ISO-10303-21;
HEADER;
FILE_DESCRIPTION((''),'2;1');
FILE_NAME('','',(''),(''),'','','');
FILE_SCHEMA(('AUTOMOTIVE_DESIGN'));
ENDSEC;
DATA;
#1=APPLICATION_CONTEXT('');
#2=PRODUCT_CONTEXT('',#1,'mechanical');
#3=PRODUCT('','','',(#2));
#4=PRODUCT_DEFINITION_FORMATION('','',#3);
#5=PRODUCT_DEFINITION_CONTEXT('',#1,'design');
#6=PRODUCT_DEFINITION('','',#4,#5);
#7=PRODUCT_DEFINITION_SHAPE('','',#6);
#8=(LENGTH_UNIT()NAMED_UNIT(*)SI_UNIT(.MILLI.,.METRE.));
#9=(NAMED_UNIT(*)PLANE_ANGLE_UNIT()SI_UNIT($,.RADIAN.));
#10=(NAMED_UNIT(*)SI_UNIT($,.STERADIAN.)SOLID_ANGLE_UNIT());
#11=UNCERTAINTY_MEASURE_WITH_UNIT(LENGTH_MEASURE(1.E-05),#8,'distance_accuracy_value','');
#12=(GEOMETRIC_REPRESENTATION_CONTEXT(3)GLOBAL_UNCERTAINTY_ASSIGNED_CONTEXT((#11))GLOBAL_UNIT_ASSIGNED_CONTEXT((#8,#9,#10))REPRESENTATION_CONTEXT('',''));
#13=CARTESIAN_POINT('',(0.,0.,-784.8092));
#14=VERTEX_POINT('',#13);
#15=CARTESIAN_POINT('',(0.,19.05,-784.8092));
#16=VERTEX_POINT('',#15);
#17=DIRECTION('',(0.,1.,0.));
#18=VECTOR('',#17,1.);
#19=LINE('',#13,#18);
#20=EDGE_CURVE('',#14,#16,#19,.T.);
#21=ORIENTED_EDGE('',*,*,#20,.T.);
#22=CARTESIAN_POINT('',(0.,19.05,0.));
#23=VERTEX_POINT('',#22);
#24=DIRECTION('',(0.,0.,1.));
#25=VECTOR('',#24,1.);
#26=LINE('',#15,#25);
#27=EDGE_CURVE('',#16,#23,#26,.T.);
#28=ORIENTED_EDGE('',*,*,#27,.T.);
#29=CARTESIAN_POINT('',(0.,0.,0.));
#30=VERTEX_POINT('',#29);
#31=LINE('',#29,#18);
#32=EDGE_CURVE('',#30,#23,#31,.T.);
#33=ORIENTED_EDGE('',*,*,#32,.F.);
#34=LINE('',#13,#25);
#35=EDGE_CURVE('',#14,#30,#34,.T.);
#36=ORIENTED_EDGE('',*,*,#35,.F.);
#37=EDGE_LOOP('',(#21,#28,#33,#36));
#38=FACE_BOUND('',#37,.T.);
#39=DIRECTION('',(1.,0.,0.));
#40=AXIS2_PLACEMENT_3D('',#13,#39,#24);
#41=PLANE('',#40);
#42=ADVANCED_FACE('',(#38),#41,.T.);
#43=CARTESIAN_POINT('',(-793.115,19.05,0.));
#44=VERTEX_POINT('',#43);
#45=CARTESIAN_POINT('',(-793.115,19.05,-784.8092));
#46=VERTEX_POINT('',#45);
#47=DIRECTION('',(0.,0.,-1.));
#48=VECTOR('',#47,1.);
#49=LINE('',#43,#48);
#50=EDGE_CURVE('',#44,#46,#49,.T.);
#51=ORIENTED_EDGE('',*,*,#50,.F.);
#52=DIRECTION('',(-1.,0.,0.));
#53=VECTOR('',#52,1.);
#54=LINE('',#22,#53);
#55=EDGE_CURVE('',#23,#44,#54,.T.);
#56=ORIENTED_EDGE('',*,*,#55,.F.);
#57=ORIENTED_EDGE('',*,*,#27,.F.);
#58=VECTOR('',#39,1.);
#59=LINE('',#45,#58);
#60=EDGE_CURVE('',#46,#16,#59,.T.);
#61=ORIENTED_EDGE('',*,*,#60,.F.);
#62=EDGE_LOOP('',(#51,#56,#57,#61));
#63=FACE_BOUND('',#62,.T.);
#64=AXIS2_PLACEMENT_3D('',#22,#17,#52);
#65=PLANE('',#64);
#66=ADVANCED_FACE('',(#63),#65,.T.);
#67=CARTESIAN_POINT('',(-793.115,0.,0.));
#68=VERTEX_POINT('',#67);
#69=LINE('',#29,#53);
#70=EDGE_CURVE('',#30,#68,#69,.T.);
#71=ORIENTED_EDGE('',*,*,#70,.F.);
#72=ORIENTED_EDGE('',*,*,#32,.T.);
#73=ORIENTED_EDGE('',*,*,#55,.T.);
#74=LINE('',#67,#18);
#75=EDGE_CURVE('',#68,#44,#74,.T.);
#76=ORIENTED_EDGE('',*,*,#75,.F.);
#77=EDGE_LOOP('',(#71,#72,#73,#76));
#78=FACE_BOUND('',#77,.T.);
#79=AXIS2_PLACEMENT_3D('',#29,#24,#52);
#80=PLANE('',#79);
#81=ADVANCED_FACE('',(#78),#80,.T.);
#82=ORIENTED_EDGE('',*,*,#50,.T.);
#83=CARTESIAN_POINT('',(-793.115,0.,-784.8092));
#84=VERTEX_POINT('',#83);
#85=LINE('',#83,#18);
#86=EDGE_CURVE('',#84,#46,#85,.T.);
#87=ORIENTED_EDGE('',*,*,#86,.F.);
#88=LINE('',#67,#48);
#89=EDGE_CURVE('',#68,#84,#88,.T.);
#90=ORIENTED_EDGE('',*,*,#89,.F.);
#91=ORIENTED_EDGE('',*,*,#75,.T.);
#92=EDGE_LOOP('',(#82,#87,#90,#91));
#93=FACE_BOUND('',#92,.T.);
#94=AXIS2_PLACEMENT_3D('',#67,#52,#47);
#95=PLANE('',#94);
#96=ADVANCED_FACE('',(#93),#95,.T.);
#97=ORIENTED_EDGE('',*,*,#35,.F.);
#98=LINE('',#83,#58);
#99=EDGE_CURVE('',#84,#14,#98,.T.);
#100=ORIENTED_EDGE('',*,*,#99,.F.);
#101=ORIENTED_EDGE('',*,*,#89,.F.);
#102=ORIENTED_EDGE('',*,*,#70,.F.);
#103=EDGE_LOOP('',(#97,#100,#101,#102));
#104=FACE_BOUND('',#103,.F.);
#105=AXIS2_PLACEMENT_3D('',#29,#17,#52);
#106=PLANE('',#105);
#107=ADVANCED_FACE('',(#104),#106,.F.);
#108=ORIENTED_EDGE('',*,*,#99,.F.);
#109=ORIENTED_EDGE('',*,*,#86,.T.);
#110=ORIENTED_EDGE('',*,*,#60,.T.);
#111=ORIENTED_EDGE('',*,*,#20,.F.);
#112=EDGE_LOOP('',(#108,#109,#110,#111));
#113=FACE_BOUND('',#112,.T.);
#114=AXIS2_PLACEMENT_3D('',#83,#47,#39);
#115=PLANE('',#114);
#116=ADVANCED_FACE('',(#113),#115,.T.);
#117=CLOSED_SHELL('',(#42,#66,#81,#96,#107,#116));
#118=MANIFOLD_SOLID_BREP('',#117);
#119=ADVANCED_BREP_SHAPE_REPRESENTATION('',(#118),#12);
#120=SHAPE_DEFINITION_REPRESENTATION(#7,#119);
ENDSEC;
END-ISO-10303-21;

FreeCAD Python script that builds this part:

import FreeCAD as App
import Part
import Sketcher
from FreeCAD import Vector
Q = App.Units.Quantity

doc = App.newDocument("Part")
params = doc.addObject("Spreadsheet::Sheet", "Params")
for row, (alias, value) in enumerate([
    ("sketch1_width", "31.225 in"),
    ("sketch1_height", "30.898 in"),
    ("pad1_length", "0.75 in"),
], start=1):
    params.set(f"A{row}", alias)
    params.set(f"B{row}", "=" + value)
    params.setAlias(f"B{row}", alias)

body = doc.addObject("PartDesign::Body", "Body")

sketch1 = body.newObject("Sketcher::SketchObject", "Sketch")
sketch1.AttachmentSupport = (doc.getObject("XZ_Plane"), [""])
sketch1.MapMode = "FlatFace"
sketch1.addGeometry(Part.LineSegment(Vector(-793, 0, 0), Vector(0, 0, 0)), False)
sketch1.addGeometry(Part.LineSegment(Vector(0, 0, 0), Vector(0, -785, 0)), False)
sketch1.addGeometry(Part.LineSegment(Vector(0, -785, 0), Vector(-793, -785, 0)), False)
sketch1.addGeometry(Part.LineSegment(Vector(-793, -785, 0), Vector(-793, 0, 0)), False)
sketch1.addConstraint(Sketcher.Constraint("Coincident", 0, 2, 1, 1))
sketch1.addConstraint(Sketcher.Constraint("Coincident", 1, 2, 2, 1))
sketch1.addConstraint(Sketcher.Constraint("Coincident", 2, 2, 3, 1))
sketch1.addConstraint(Sketcher.Constraint("Coincident", 3, 2, 0, 1))
sketch1.addConstraint(Sketcher.Constraint("Horizontal", 0))
sketch1.addConstraint(Sketcher.Constraint("Vertical", 1))
sketch1.addConstraint(Sketcher.Constraint("Horizontal", 2))
sketch1.addConstraint(Sketcher.Constraint("Vertical", 3))
sketch1.addConstraint(Sketcher.Constraint("Coincident", 0, 2, -1, 1))
sketch1.addConstraint(Sketcher.Constraint("DistanceX", 0, 1, 0, 2, Q("31.225 in")))
sketch1.addConstraint(Sketcher.Constraint("DistanceY", 1, 2, 1, 1, Q("30.898 in")))
sketch1.setExpression("Constraints[9]", "Params.sketch1_width")
sketch1.setExpression("Constraints[10]", "Params.sketch1_height")
pad1 = body.newObject("PartDesign::Pad", "Pad")
pad1.Profile = sketch1
pad1.setExpression("Length", "Params.pad1_length")
pad1.Reversed = True

doc.recompute()
